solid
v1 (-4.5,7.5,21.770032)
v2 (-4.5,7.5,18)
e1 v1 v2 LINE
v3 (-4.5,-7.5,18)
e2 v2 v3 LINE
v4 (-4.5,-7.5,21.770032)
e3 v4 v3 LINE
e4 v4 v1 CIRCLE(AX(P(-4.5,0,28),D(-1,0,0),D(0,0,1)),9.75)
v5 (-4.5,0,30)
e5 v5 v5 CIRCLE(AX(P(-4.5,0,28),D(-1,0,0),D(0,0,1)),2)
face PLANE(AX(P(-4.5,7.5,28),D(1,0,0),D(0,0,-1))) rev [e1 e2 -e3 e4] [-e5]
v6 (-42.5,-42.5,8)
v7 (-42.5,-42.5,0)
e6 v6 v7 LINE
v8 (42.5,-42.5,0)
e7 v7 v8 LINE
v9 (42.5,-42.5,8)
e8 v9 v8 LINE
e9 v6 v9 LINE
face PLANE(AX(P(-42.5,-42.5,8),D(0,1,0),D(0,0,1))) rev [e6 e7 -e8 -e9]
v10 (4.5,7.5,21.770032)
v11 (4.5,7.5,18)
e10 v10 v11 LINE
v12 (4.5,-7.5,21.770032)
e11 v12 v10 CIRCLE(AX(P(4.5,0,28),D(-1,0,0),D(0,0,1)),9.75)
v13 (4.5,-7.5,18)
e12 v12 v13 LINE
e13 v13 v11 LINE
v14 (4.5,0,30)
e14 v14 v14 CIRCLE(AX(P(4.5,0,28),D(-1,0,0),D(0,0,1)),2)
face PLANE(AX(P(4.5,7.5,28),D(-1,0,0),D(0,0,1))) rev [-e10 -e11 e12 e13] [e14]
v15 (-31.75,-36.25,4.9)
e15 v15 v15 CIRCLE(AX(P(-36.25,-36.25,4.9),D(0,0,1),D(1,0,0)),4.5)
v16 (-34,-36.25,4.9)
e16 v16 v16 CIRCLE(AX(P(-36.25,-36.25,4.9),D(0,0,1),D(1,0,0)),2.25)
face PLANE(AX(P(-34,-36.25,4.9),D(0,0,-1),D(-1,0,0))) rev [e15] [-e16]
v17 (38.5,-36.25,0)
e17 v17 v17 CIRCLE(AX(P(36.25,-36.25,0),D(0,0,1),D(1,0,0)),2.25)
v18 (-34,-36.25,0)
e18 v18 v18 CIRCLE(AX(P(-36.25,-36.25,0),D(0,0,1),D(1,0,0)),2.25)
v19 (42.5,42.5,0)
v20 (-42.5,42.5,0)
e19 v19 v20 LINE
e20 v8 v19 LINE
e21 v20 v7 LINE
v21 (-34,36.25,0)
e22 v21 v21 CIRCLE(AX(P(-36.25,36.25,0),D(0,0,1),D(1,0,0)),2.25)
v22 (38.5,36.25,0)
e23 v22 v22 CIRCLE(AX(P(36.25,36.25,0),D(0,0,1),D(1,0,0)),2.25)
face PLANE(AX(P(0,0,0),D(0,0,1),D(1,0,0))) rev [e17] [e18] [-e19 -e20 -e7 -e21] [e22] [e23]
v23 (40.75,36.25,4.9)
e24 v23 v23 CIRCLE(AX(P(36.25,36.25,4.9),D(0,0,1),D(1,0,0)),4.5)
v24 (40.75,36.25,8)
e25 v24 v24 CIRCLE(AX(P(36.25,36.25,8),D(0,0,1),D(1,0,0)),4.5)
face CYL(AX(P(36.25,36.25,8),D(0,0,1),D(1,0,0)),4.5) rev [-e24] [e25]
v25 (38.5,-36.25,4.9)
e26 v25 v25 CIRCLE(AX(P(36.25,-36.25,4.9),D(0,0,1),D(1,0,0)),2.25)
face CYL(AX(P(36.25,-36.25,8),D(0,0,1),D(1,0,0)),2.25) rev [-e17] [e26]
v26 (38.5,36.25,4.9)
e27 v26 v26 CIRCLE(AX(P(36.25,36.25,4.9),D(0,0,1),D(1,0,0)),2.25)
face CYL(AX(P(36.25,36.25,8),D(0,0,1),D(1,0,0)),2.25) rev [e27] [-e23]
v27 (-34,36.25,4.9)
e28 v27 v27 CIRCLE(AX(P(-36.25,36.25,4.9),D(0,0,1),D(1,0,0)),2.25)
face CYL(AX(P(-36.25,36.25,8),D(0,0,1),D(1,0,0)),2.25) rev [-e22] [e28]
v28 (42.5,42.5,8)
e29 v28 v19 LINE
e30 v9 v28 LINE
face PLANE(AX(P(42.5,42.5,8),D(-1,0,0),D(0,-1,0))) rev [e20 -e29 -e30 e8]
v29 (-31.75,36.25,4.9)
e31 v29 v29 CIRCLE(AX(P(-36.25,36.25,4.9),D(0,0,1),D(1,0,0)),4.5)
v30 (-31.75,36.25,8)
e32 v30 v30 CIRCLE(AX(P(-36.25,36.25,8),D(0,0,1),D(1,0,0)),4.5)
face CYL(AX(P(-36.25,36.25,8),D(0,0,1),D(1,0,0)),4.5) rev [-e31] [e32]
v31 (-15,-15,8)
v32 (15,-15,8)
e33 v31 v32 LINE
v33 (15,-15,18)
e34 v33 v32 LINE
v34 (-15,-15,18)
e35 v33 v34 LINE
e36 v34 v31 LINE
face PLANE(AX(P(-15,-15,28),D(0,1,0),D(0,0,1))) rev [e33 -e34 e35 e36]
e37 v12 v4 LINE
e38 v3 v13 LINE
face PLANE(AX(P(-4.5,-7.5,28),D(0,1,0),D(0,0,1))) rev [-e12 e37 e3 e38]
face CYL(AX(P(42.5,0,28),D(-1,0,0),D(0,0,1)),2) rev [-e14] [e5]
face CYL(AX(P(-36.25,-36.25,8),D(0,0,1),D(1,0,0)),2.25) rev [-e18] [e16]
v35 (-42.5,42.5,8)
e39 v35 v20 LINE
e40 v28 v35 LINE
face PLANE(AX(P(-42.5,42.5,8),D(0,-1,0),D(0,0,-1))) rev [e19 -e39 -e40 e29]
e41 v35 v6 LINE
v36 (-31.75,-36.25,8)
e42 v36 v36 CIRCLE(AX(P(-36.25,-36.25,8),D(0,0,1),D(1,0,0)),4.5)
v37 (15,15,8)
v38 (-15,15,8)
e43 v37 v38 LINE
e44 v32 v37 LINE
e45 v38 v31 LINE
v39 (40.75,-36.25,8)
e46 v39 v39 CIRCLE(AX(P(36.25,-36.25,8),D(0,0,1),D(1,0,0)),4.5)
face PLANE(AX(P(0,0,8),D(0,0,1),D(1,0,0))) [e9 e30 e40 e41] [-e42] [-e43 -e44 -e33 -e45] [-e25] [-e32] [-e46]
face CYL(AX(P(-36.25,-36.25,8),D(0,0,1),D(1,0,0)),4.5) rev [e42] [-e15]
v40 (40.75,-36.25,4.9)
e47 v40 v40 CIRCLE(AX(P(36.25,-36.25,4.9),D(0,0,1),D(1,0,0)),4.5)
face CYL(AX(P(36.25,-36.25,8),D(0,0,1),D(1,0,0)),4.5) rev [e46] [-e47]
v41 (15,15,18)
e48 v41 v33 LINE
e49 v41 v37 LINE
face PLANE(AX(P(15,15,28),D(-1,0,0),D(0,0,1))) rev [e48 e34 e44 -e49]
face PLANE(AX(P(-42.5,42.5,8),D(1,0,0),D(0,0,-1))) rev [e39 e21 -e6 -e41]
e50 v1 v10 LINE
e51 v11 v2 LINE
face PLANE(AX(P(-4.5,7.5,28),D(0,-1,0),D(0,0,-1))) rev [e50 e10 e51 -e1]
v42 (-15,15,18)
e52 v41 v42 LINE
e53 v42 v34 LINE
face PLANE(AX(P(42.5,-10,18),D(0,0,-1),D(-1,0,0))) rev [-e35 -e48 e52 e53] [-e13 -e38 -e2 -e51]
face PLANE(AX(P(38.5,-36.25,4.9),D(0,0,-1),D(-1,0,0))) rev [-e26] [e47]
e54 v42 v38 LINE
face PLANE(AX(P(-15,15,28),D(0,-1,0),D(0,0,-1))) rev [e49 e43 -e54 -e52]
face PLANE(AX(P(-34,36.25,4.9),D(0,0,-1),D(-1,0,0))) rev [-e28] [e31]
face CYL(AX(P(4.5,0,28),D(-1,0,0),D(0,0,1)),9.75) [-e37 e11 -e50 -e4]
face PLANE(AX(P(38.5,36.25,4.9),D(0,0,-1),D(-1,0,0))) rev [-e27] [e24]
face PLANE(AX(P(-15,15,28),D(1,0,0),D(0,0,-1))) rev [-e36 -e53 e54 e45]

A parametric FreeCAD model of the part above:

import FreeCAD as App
import Part
import Sketcher

V = App.Vector
Q = App.Units.Quantity


def add_polygon(sketch, points):
    """Adds a closed chain of lines whose ends are joined by coincident constraints."""
    first, n = sketch.GeometryCount, len(points)
    for a, b in zip(points, points[1:] + points[:1]):
        sketch.addGeometry(Part.LineSegment(App.Vector(*a, 0), App.Vector(*b, 0)), False)
    for i in range(n):
        sketch.addConstraint(Sketcher.Constraint("Coincident", first + i, 2, first + (i + 1) % n, 1))

doc = App.newDocument("Part")
params = doc.addObject("Spreadsheet::Sheet", "Params")
for row, (alias, value) in enumerate([
    ("sketch1_width", "85 mm"),
    ("pad1_length", "8 mm"),
    ("sketch2_diameter", "4.5 mm"),
    ("hole_diameter", "4.5 mm"),
    ("hole_cbore_diameter", "9 mm"),
    ("hole_cbore_depth", "3.1 mm"),
    ("sketch3_width", "30 mm"),
    ("pad2_length", "20 mm"),
    ("sketch4_diameter", "20 mm"),
    ("pocket1_length", "10 mm"),
    ("sketch5_diameter", "20 mm"),
    ("pocket2_length", "10 mm"),
    ("sketch6_width", "30 mm"),
    ("sketch6_height", "10 mm"),
    ("sketch7_width", "9 mm"),
    ("sketch7_height", "15 mm"),
    ("pad3_length", "10 mm"),
    ("sketch8_diameter", "19.5 mm"),
    ("pad4_length", "9 mm"),
    ("sketch9_diameter", "4 mm"),
], start=1):
    params.set(f"A{row}", alias)
    params.set(f"B{row}", "=" + value)
    params.setAlias(f"B{row}", alias)

body = doc.addObject("PartDesign::Body", "Body")

# Sketch on XY plane
sketch1 = body.newObject("Sketcher::SketchObject", "Sketch")
sketch1.AttachmentSupport = (doc.getObject("XY_Plane"), [""])
sketch1.MapMode = "FlatFace"
add_polygon(sketch1, [(-42.5, 42.5), (-42.5, -42.5), (42.5, -42.5), (42.5, 42.5)])  # lines 0-3
sketch1.addConstraint(Sketcher.Constraint("Vertical", 0))
sketch1.addConstraint(Sketcher.Constraint("Horizontal", 1))
sketch1.addConstraint(Sketcher.Constraint("Vertical", 2))
sketch1.addConstraint(Sketcher.Constraint("Horizontal", 3))
sketch1.addConstraint(Sketcher.Constraint("Symmetric", 0, 2, 2, 2, -1, 1))
sketch1.addConstraint(Sketcher.Constraint("Equal", 3, 0))
sketch1.addConstraint(Sketcher.Constraint("DistanceX", 1, 1, 1, 2, Q("85 mm")))
sketch1.setExpression("Constraints[10]", "Params.sketch1_width")
pad1 = body.newObject("PartDesign::Pad", "Pad")
pad1.Profile = sketch1
pad1.setExpression("Length", "Params.pad1_length")

# Sketch on XY plane
sketch2 = body.newObject("Sketcher::SketchObject", "Sketch001")
sketch2.AttachmentSupport = (doc.getObject("XY_Plane"), [""])
sketch2.MapMode = "FlatFace"
sketch2.AttachmentOffset = App.Placement(V(0, 0, 8), App.Rotation())
sketch2.addGeometry(Part.Circle(V(-36.25, 36.25, 0), V(0, 0, 1), 2.25), False)
sketch2.addGeometry(Part.Circle(V(-36.25, -36.25, 0), V(0, 0, 1), 2.25), False)
sketch2.addGeometry(Part.Circle(V(36.25, -36.25, 0), V(0, 0, 1), 2.25), False)
sketch2.addGeometry(Part.Circle(V(36.25, 36.25, 0), V(0, 0, 1), 2.25), False)
sketch2.addConstraint(Sketcher.Constraint("Equal", 0, 1))
sketch2.addConstraint(Sketcher.Constraint("Equal", 1, 2))
sketch2.addConstraint(Sketcher.Constraint("Equal", 2, 3))
sketch2.addConstraint(Sketcher.Constraint("Symmetric", 0, 3, 2, 3, -1, 1))
sketch2.addConstraint(Sketcher.Constraint("Symmetric", 1, 3, 3, 3, -1, 1))
sketch2.addConstraint(Sketcher.Constraint("Symmetric", 1, 3, 2, 3, -2))
sketch2.addConstraint(Sketcher.Constraint("Diameter", 0, Q("4.5 mm")))
sketch2.addConstraint(Sketcher.Constraint("DistanceY", 1, 3, 0, 3, Q("72.5 mm")))
sketch2.addConstraint(Sketcher.Constraint("DistanceX", 1, 3, 2, 3, Q("72.5 mm")))
sketch2.setExpression("Constraints[6]", "Params.sketch2_diameter")
doc.recompute()
hole = body.newObject("PartDesign::Hole", "Hole")
hole.Profile = sketch2
hole.ThreadType = "None"
hole.setExpression("Diameter", "Params.hole_diameter")
hole.DepthType = "ThroughAll"
hole.HoleCutType = "Counterbore"
hole.setExpression("HoleCutDiameter", "Params.hole_cbore_diameter")
hole.setExpression("HoleCutDepth", "Params.hole_cbore_depth")

# Sketch on XY plane
sketch3 = body.newObject("Sketcher::SketchObject", "Sketch002")
sketch3.AttachmentSupport = (doc.getObject("XY_Plane"), [""])
sketch3.MapMode = "FlatFace"
sketch3.AttachmentOffset = App.Placement(V(0, 0, 8), App.Rotation())
add_polygon(sketch3, [(-15, 15), (-15, -15), (15, -15), (15, 15)])  # lines 0-3
sketch3.addConstraint(Sketcher.Constraint("Vertical", 0))
sketch3.addConstraint(Sketcher.Constraint("Horizontal", 1))
sketch3.addConstraint(Sketcher.Constraint("Vertical", 2))
sketch3.addConstraint(Sketcher.Constraint("Horizontal", 3))
sketch3.addConstraint(Sketcher.Constraint("Symmetric", 0, 2, 2, 2, -1, 1))
sketch3.addConstraint(Sketcher.Constraint("Equal", 3, 0))
sketch3.addConstraint(Sketcher.Constraint("DistanceX", 1, 1, 1, 2, Q("30 mm")))
sketch3.setExpression("Constraints[10]", "Params.sketch3_width")
pad2 = body.newObject("PartDesign::Pad", "Pad001")
pad2.Profile = sketch3
pad2.setExpression("Length", "Params.pad2_length")

# Sketch on YZ plane
sketch4 = body.newObject("Sketcher::SketchObject", "Sketch003")
sketch4.AttachmentSupport = (doc.getObject("YZ_Plane"), [""])
sketch4.MapMode = "FlatFace"
sketch4.AttachmentOffset = App.Placement(V(0, 0, 15), App.Rotation())
sketch4.addGeometry(Part.Circle(V(0, 28, 0), V(0, 0, 1), 10), False)
sketch4.addConstraint(Sketcher.Constraint("PointOnObject", 0, 3, -2))
sketch4.addConstraint(Sketcher.Constraint("Diameter", 0, Q("20 mm")))
sketch4.addConstraint(Sketcher.Constraint("DistanceY", -1, 1, 0, 3, Q("28 mm")))
sketch4.setExpression("Constraints[1]", "Params.sketch4_diameter")
pocket1 = body.newObject("PartDesign::Pocket", "Pocket")
pocket1.Profile = sketch4
pocket1.setExpression("Length", "Params.pocket1_length")

# Sketch on YZ plane
sketch5 = body.newObject("Sketcher::SketchObject", "Sketch004")
sketch5.AttachmentSupport = (doc.getObject("YZ_Plane"), [""])
sketch5.MapMode = "FlatFace"
sketch5.AttachmentOffset = App.Placement(V(0, 0, -15), App.Rotation())
sketch5.addGeometry(Part.Circle(V(0, 28, 0), V(0, 0, 1), 10), False)
sketch5.addConstraint(Sketcher.Constraint("PointOnObject", 0, 3, -2))
sketch5.addConstraint(Sketcher.Constraint("Diameter", 0, Q("20 mm")))
sketch5.addConstraint(Sketcher.Constraint("DistanceY", -1, 1, 0, 3, Q("28 mm")))
sketch5.setExpression("Constraints[1]", "Params.sketch5_diameter")
pocket2 = body.newObject("PartDesign::Pocket", "Pocket001")
pocket2.Profile = sketch5
pocket2.setExpression("Length", "Params.pocket2_length")
pocket2.Reversed = True

# Sketch on YZ plane
sketch6 = body.newObject("Sketcher::SketchObject", "Sketch005")
sketch6.AttachmentSupport = (doc.getObject("YZ_Plane"), [""])
sketch6.MapMode = "FlatFace"
sketch6.AttachmentOffset = App.Placement(V(0, 0, -15), App.Rotation())
add_polygon(sketch6, [(15, 18), (-15, 18), (-15, 28), (15, 28)])  # lines 0-3
sketch6.addConstraint(Sketcher.Constraint("Horizontal", 0))
sketch6.addConstraint(Sketcher.Constraint("Vertical", 1))
sketch6.addConstraint(Sketcher.Constraint("Horizontal", 2))
sketch6.addConstraint(Sketcher.Constraint("Vertical", 3))
sketch6.addConstraint(Sketcher.Constraint("DistanceX", 0, 2, 0, 1, Q("30 mm")))
sketch6.addConstraint(Sketcher.Constraint("DistanceY", 1, 1, 1, 2, Q("10 mm")))
sketch6.addConstraint(Sketcher.Constraint("DistanceX", 0, 2, -1, 1, Q("15 mm")))
sketch6.addConstraint(Sketcher.Constraint("DistanceY", -1, 1, 0, 2, Q("18 mm")))
sketch6.setExpression("Constraints[8]", "Params.sketch6_width")
sketch6.setExpression("Constraints[9]", "Params.sketch6_height")
pocket3 = body.newObject("PartDesign::Pocket", "Pocket002")
pocket3.Profile = sketch6
pocket3.Type = "ThroughAll"
pocket3.Reversed = True

# Sketch on XY plane
sketch7 = body.newObject("Sketcher::SketchObject", "Sketch006")
sketch7.AttachmentSupport = (doc.getObject("XY_Plane"), [""])
sketch7.MapMode = "FlatFace"
sketch7.AttachmentOffset = App.Placement(V(0, 0, 18), App.Rotation())
add_polygon(sketch7, [(-4.5, 7.5), (-4.5, -7.5), (4.5, -7.5), (4.5, 7.5)])  # lines 0-3
sketch7.addConstraint(Sketcher.Constraint("Vertical", 0))
sketch7.addConstraint(Sketcher.Constraint("Horizontal", 1))
sketch7.addConstraint(Sketcher.Constraint("Vertical", 2))
sketch7.addConstraint(Sketcher.Constraint("Horizontal", 3))
sketch7.addConstraint(Sketcher.Constraint("Symmetric", 0, 2, 2, 2, -1, 1))
sketch7.addConstraint(Sketcher.Constraint("DistanceX", 1, 1, 1, 2, Q("9 mm")))
sketch7.addConstraint(Sketcher.Constraint("DistanceY", 0, 2, 0, 1, Q("15 mm")))
sketch7.setExpression("Constraints[9]", "Params.sketch7_width")
sketch7.setExpression("Constraints[10]", "Params.sketch7_height")
pad3 = body.newObject("PartDesign::Pad", "Pad002")
pad3.Profile = sketch7
pad3.setExpression("Length", "Params.pad3_length")

# Sketch on YZ plane
sketch8 = body.newObject("Sketcher::SketchObject", "Sketch007")
sketch8.AttachmentSupport = (doc.getObject("YZ_Plane"), [""])
sketch8.MapMode = "FlatFace"
sketch8.AttachmentOffset = App.Placement(V(0, 0, -4.5), App.Rotation())
sketch8.addGeometry(Part.Circle(V(0, 28, 0), V(0, 0, 1), 9.75), False)
sketch8.addConstraint(Sketcher.Constraint("PointOnObject", 0, 3, -2))
sketch8.addConstraint(Sketcher.Constraint("Diameter", 0, Q("19.5 mm")))
sketch8.addConstraint(Sketcher.Constraint("DistanceY", -1, 1, 0, 3, Q("28 mm")))
sketch8.setExpression("Constraints[1]", "Params.sketch8_diameter")
pad4 = body.newObject("PartDesign::Pad", "Pad003")
pad4.Profile = sketch8
pad4.setExpression("Length", "Params.pad4_length")

# Sketch on YZ plane
sketch9 = body.newObject("Sketcher::SketchObject", "Sketch008")
sketch9.AttachmentSupport = (doc.getObject("YZ_Plane"), [""])
sketch9.MapMode = "FlatFace"
sketch9.AttachmentOffset = App.Placement(V(0, 0, -4.5), App.Rotation())
sketch9.addGeometry(Part.Circle(V(0, 28, 0), V(0, 0, 1), 2), False)
sketch9.addConstraint(Sketcher.Constraint("PointOnObject", 0, 3, -2))
sketch9.addConstraint(Sketcher.Constraint("Diameter", 0, Q("4 mm")))
sketch9.addConstraint(Sketcher.Constraint("DistanceY", -1, 1, 0, 3, Q("28 mm")))
sketch9.setExpression("Constraints[1]", "Params.sketch9_diameter")
pocket4 = body.newObject("PartDesign::Pocket", "Pocket003")
pocket4.Profile = sketch9
pocket4.Type = "ThroughAll"
pocket4.Reversed = True

doc.recompute()
